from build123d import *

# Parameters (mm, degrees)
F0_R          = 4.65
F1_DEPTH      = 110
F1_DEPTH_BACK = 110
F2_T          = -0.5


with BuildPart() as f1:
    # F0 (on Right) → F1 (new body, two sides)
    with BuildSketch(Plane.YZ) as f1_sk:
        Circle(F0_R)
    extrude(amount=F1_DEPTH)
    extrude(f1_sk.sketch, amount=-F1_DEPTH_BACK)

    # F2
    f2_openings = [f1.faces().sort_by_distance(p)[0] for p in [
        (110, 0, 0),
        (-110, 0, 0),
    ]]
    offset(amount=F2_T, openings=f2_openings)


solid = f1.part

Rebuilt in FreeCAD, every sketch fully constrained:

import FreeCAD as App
import Part
import Sketcher


def faces_at(feature, points):
    """Names of the faces that lie closest to the given points."""
    faces = feature.Shape.Faces
    near = lambda p: min(range(len(faces)), key=lambda i: faces[i].distToShape(Part.Vertex(*p))[0])
    return sorted({f"Face{near(p) + 1}" for p in points})

doc = App.newDocument("Part")
body = doc.addObject("PartDesign::Body", "Body")

sketch1 = body.newObject("Sketcher::SketchObject", "Sketch")
sketch1.AttachmentSupport = (doc.getObject("YZ_Plane"), [""])
sketch1.MapMode = "FlatFace"
sketch1.addGeometry(Part.Circle(App.Vector(0, 0, 0), App.Vector(0, 0, 1), 4.7), False)
sketch1.addConstraint([
    Sketcher.Constraint("Coincident", 0, 3, -1, 1),
    Sketcher.Constraint("Diameter", 0, 9.3),
])
pad1 = body.newObject("PartDesign::Pad", "Pad")
pad1.Profile = sketch1
pad1.Type = "TwoLengths"
pad1.Length = 110
pad1.Length2 = 110
doc.recompute()

thickness = body.newObject("PartDesign::Thickness", "Thickness")
thickness.Base = (pad1, faces_at(pad1, [(110, 0, 0), (-110, 0, 0)]))
thickness.Value = 0.5
thickness.Reversed = True
thickness.Join = "Arc"

doc.recompute()
